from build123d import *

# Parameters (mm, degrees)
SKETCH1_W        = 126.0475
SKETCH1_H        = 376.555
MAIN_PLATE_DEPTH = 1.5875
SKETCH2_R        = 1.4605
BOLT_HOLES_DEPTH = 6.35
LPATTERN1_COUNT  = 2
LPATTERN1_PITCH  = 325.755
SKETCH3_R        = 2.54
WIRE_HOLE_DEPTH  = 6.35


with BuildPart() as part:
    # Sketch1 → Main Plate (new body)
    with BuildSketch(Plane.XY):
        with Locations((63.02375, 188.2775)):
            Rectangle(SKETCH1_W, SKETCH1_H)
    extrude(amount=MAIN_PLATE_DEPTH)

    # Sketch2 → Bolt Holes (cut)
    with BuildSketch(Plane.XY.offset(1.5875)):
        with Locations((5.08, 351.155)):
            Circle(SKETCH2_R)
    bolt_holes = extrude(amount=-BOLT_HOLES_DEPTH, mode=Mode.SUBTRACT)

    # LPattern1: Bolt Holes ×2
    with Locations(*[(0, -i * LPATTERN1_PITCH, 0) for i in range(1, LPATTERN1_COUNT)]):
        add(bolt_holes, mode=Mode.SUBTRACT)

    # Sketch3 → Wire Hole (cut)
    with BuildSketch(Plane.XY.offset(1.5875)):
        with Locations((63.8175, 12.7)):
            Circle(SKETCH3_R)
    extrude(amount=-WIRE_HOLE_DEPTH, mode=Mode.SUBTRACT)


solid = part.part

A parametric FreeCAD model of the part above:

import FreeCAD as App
import Part
import Sketcher
from FreeCAD import Vector
Q = App.Units.Quantity


def add_polygon(sketch, points):
    """Adds a closed chain of lines whose ends are joined by coincident constraints."""
    first, n = sketch.GeometryCount, len(points)
    for a, b in zip(points, points[1:] + points[:1]):
        sketch.addGeometry(Part.LineSegment(App.Vector(*a, 0), App.Vector(*b, 0)), False)
    for i in range(n):
        sketch.addConstraint(Sketcher.Constraint("Coincident", first + i, 2, first + (i + 1) % n, 1))

doc = App.newDocument("Part")
body = doc.addObject("PartDesign::Body", "Body")

# Sketch on XY plane
sketch1 = body.newObject("Sketcher::SketchObject", "Sketch")
sketch1.AttachmentSupport = (doc.getObject("XY_Plane"), [""])
sketch1.MapMode = "FlatFace"
add_polygon(sketch1, [(0, 376.555), (0, 0), (126.0475, 0), (126.0475, 376.555)])  # lines 0-3
sketch1.addConstraint(Sketcher.Constraint("Vertical", 0))
sketch1.addConstraint(Sketcher.Constraint("Horizontal", 1))
sketch1.addConstraint(Sketcher.Constraint("Vertical", 2))
sketch1.addConstraint(Sketcher.Constraint("Horizontal", 3))
sketch1.addConstraint(Sketcher.Constraint("Coincident", 0, 2, -1, 1))
sketch1.addConstraint(Sketcher.Constraint("DistanceY", 0, 2, 0, 1, Q("14.825 in")))
sketch1.addConstraint(Sketcher.Constraint("DistanceX", 1, 1, 1, 2, Q("4.9625 in")))
pad1 = body.newObject("PartDesign::Pad", "Pad")
pad1.Profile = sketch1
pad1.Length = Q("0.0625 in")

# Sketch on XY plane
sketch2 = body.newObject("Sketcher::SketchObject", "Sketch001")
sketch2.AttachmentSupport = (doc.getObject("XY_Plane"), [""])
sketch2.MapMode = "FlatFace"
sketch2.AttachmentOffset = App.Placement(Vector(0, 0, 0.0625 * 25.4), App.Rotation())
sketch2.addGeometry(Part.Circle(Vector(5.08, 351.155, 0), Vector(0, 0, 1), 1.4605), False)
sketch2.addConstraint(Sketcher.Constraint("Diameter", 0, Q("0.115 in")))
sketch2.addConstraint(Sketcher.Constraint("DistanceX", -1, 1, 0, 3, Q("0.2 in")))
sketch2.addConstraint(Sketcher.Constraint("DistanceY", -1, 1, 0, 3, Q("13.825 in")))
pocket1 = body.newObject("PartDesign::Pocket", "Pocket")
pocket1.Profile = sketch2
pocket1.Length = Q("0.25 in")
doc.recompute()

linearpattern = body.newObject("PartDesign::LinearPattern", "LinearPattern")
linearpattern.Originals = [pocket1]
linearpattern.Direction = (doc.getObject("Y_Axis"), [""])
linearpattern.Mode = "offset"
linearpattern.Offset = Q("12.825 in")
linearpattern.Occurrences = 2
linearpattern.Reversed = True
body.Tip = linearpattern

# Sketch on XY plane
sketch3 = body.newObject("Sketcher::SketchObject", "Sketch002")
sketch3.AttachmentSupport = (doc.getObject("XY_Plane"), [""])
sketch3.MapMode = "FlatFace"
sketch3.AttachmentOffset = App.Placement(Vector(0, 0, 0.0625 * 25.4), App.Rotation())
sketch3.addGeometry(Part.Circle(Vector(63.8175, 12.7, 0), Vector(0, 0, 1), 2.54), False)
sketch3.addConstraint(Sketcher.Constraint("Diameter", 0, Q("0.2 in")))
sketch3.addConstraint(Sketcher.Constraint("DistanceY", -1, 1, 0, 3, Q("0.5 in")))
sketch3.addConstraint(Sketcher.Constraint("DistanceX", -1, 1, 0, 3, Q("2.5125 in")))
pocket2 = body.newObject("PartDesign::Pocket", "Pocket001")
pocket2.Profile = sketch3
pocket2.Length = Q("0.25 in")

doc.recompute()
